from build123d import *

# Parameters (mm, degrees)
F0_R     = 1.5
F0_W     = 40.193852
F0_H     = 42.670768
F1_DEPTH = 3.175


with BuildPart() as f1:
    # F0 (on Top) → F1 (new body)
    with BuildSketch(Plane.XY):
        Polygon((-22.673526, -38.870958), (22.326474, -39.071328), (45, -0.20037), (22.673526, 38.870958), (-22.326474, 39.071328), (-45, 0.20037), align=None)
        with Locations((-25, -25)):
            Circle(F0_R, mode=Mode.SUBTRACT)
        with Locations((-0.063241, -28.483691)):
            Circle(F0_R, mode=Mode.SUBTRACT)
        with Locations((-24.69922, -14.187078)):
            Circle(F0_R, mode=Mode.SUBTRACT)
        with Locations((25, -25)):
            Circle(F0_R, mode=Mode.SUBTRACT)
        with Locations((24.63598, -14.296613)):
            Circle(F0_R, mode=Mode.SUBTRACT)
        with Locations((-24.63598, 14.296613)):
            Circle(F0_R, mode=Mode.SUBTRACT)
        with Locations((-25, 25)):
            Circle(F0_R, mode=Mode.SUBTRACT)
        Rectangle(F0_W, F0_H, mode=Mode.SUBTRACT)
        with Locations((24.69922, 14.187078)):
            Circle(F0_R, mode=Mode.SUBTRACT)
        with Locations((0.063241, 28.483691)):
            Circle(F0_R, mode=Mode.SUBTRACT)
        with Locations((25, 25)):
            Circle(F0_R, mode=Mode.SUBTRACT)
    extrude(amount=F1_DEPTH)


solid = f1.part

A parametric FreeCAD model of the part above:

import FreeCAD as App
import Part
import Sketcher

V = App.Vector

doc = App.newDocument("Part")
body = doc.addObject("PartDesign::Body", "Body")

sketch1 = doc.addObject("Sketcher::SketchObject", "Sketch")
body.addObject(sketch1)
sketch1.AttachmentSupport = (doc.XY_Plane, [""])
sketch1.MapMode = "FlatFace"
sketch1.addGeometry(Part.LineSegment(V(-22.7, -38.9, 0), V(22.3, -39.1, 0)), False)
sketch1.addGeometry(Part.LineSegment(V(22.3, -39.1, 0), V(45, -0.2, 0)), False)
sketch1.addGeometry(Part.LineSegment(V(45, -0.2, 0), V(22.7, 38.9, 0)), False)
sketch1.addGeometry(Part.LineSegment(V(22.7, 38.9, 0), V(-22.3, 39.1, 0)), False)
sketch1.addGeometry(Part.LineSegment(V(-22.3, 39.1, 0), V(-45, 0.2, 0)), False)
sketch1.addGeometry(Part.LineSegment(V(-45, 0.2, 0), V(-22.7, -38.9, 0)), False)
sketch1.addGeometry(Part.Circle(V(-25, -25, 0), V(0, 0, 1), 1.5), False)
sketch1.addGeometry(Part.Circle(V(-0.1, -28.5, 0), V(0, 0, 1), 1.5), False)
sketch1.addGeometry(Part.Circle(V(-24.7, -14.2, 0), V(0, 0, 1), 1.5), False)
sketch1.addGeometry(Part.Circle(V(25, -25, 0), V(0, 0, 1), 1.5), False)
sketch1.addGeometry(Part.LineSegment(V(20.1, -21.3, 0), V(-20.1, -21.3, 0)), False)
sketch1.addGeometry(Part.LineSegment(V(-20.1, -21.3, 0), V(-20.1, 21.3, 0)), False)
sketch1.addGeometry(Part.LineSegment(V(-20.1, 21.3, 0), V(20.1, 21.3, 0)), False)
sketch1.addGeometry(Part.LineSegment(V(20.1, 21.3, 0), V(20.1, -21.3, 0)), False)
sketch1.addGeometry(Part.Circle(V(24.6, -14.3, 0), V(0, 0, 1), 1.5), False)
sketch1.addGeometry(Part.Circle(V(-24.6, 14.3, 0), V(0, 0, 1), 1.5), False)
sketch1.addGeometry(Part.Circle(V(-25, 25, 0), V(0, 0, 1), 1.5), False)
sketch1.addGeometry(Part.Circle(V(24.7, 14.2, 0), V(0, 0, 1), 1.5), False)
sketch1.addGeometry(Part.Circle(V(0.1, 28.5, 0), V(0, 0, 1), 1.5), False)
sketch1.addGeometry(Part.Circle(V(25, 25, 0), V(0, 0, 1), 1.5), False)
sketch1.addConstraint(Sketcher.Constraint("Coincident", 0, 2, 1, 1))
sketch1.addConstraint(Sketcher.Constraint("Coincident", 1, 2, 2, 1))
sketch1.addConstraint(Sketcher.Constraint("Coincident", 2, 2, 3, 1))
sketch1.addConstraint(Sketcher.Constraint("Coincident", 3, 2, 4, 1))
sketch1.addConstraint(Sketcher.Constraint("Coincident", 4, 2, 5, 1))
sketch1.addConstraint(Sketcher.Constraint("Coincident", 5, 2, 0, 1))
sketch1.addConstraint(Sketcher.Constraint("Coincident", 10, 2, 11, 1))
sketch1.addConstraint(Sketcher.Constraint("Coincident", 11, 2, 12, 1))
sketch1.addConstraint(Sketcher.Constraint("Coincident", 12, 2, 13, 1))
sketch1.addConstraint(Sketcher.Constraint("Coincident", 13, 2, 10, 1))
sketch1.addConstraint(Sketcher.Constraint("Horizontal", 10))
sketch1.addConstraint(Sketcher.Constraint("Vertical", 11))
sketch1.addConstraint(Sketcher.Constraint("Horizontal", 12))
sketch1.addConstraint(Sketcher.Constraint("Vertical", 13))
sketch1.addConstraint(Sketcher.Constraint("Equal", 6, 7))
sketch1.addConstraint(Sketcher.Constraint("Equal", 7, 8))
sketch1.addConstraint(Sketcher.Constraint("Equal", 8, 9))
sketch1.addConstraint(Sketcher.Constraint("Equal", 9, 14))
sketch1.addConstraint(Sketcher.Constraint("Equal", 14, 15))
sketch1.addConstraint(Sketcher.Constraint("Equal", 15, 16))
sketch1.addConstraint(Sketcher.Constraint("Equal", 16, 17))
sketch1.addConstraint(Sketcher.Constraint("Equal", 17, 18))
sketch1.addConstraint(Sketcher.Constraint("Equal", 18, 19))
sketch1.addConstraint(Sketcher.Constraint("Symmetric", 14, 3, 15, 3, -1, 1))
sketch1.addConstraint(Sketcher.Constraint("Symmetric", 9, 3, 16, 3, -1, 1))
sketch1.addConstraint(Sketcher.Constraint("Symmetric", 8, 3, 17, 3, -1, 1))
sketch1.addConstraint(Sketcher.Constraint("Symmetric", 7, 3, 18, 3, -1, 1))
sketch1.addConstraint(Sketcher.Constraint("Symmetric", 6, 3, 19, 3, -1, 1))
sketch1.addConstraint(Sketcher.Constraint("Symmetric", 0, 2, 3, 2, -1, 1))
sketch1.addConstraint(Sketcher.Constraint("Symmetric", 1, 2, 4, 2, -1, 1))
sketch1.addConstraint(Sketcher.Constraint("Symmetric", 2, 2, 5, 2, -1, 1))
sketch1.addConstraint(Sketcher.Constraint("Symmetric", 10, 2, 12, 2, -1, 1))
sketch1.addConstraint(Sketcher.Constraint("Symmetric", 6, 3, 9, 3, -2))
sketch1.addConstraint(Sketcher.Constraint("Equal", 0, 1))
sketch1.addConstraint(Sketcher.Constraint("Equal", 1, 2))
sketch1.addConstraint(Sketcher.Constraint("Diameter", 6, 3.0))
sketch1.addConstraint(Sketcher.Constraint("DistanceX", 6, 3, -1, 1, 25.0))
sketch1.addConstraint(Sketcher.Constraint("DistanceY", 6, 3, -1, 1, 25.0))
sketch1.addConstraint(Sketcher.Constraint("DistanceX", -1, 1, 1, 2, 45.0))
sketch1.addConstraint(Sketcher.Constraint("DistanceX", 3, 2, 2, 2, 45.0))
sketch1.addConstraint(Sketcher.Constraint("DistanceY", 11, 1, 11, 2, 42.670768))
sketch1.addConstraint(Sketcher.Constraint("DistanceX", 8, 3, 14, 3, 49.3352))
sketch1.addConstraint(Sketcher.Constraint("DistanceX", 5, 2, 10, 2, 2.5766))
sketch1.addConstraint(Sketcher.Constraint("DistanceX", 10, 2, 10, 1, 40.193852))
sketch1.addConstraint(Sketcher.Constraint("DistanceX", 7, 3, -1, 1, 0.063241))
sketch1.addConstraint(Sketcher.Constraint("DistanceY", 7, 3, -1, 1, 28.483691))
sketch1.addConstraint(Sketcher.Constraint("DistanceX", 8, 3, -1, 1, 24.69922))
sketch1.addConstraint(Sketcher.Constraint("DistanceY", 1, 2, -1, 1, 0.20037))
sketch1.addConstraint(Sketcher.Constraint("DistanceY", 8, 3, 15, 3, 28.483691))
sketch1.addConstraint(Sketcher.Constraint("DistanceY", 7, 3, 17, 3, 42.670769))
pad1 = doc.addObject("PartDesign::Pad", "Pad")
body.addObject(pad1)
pad1.Profile = sketch1
pad1.Length = 3.175

doc.recompute()
